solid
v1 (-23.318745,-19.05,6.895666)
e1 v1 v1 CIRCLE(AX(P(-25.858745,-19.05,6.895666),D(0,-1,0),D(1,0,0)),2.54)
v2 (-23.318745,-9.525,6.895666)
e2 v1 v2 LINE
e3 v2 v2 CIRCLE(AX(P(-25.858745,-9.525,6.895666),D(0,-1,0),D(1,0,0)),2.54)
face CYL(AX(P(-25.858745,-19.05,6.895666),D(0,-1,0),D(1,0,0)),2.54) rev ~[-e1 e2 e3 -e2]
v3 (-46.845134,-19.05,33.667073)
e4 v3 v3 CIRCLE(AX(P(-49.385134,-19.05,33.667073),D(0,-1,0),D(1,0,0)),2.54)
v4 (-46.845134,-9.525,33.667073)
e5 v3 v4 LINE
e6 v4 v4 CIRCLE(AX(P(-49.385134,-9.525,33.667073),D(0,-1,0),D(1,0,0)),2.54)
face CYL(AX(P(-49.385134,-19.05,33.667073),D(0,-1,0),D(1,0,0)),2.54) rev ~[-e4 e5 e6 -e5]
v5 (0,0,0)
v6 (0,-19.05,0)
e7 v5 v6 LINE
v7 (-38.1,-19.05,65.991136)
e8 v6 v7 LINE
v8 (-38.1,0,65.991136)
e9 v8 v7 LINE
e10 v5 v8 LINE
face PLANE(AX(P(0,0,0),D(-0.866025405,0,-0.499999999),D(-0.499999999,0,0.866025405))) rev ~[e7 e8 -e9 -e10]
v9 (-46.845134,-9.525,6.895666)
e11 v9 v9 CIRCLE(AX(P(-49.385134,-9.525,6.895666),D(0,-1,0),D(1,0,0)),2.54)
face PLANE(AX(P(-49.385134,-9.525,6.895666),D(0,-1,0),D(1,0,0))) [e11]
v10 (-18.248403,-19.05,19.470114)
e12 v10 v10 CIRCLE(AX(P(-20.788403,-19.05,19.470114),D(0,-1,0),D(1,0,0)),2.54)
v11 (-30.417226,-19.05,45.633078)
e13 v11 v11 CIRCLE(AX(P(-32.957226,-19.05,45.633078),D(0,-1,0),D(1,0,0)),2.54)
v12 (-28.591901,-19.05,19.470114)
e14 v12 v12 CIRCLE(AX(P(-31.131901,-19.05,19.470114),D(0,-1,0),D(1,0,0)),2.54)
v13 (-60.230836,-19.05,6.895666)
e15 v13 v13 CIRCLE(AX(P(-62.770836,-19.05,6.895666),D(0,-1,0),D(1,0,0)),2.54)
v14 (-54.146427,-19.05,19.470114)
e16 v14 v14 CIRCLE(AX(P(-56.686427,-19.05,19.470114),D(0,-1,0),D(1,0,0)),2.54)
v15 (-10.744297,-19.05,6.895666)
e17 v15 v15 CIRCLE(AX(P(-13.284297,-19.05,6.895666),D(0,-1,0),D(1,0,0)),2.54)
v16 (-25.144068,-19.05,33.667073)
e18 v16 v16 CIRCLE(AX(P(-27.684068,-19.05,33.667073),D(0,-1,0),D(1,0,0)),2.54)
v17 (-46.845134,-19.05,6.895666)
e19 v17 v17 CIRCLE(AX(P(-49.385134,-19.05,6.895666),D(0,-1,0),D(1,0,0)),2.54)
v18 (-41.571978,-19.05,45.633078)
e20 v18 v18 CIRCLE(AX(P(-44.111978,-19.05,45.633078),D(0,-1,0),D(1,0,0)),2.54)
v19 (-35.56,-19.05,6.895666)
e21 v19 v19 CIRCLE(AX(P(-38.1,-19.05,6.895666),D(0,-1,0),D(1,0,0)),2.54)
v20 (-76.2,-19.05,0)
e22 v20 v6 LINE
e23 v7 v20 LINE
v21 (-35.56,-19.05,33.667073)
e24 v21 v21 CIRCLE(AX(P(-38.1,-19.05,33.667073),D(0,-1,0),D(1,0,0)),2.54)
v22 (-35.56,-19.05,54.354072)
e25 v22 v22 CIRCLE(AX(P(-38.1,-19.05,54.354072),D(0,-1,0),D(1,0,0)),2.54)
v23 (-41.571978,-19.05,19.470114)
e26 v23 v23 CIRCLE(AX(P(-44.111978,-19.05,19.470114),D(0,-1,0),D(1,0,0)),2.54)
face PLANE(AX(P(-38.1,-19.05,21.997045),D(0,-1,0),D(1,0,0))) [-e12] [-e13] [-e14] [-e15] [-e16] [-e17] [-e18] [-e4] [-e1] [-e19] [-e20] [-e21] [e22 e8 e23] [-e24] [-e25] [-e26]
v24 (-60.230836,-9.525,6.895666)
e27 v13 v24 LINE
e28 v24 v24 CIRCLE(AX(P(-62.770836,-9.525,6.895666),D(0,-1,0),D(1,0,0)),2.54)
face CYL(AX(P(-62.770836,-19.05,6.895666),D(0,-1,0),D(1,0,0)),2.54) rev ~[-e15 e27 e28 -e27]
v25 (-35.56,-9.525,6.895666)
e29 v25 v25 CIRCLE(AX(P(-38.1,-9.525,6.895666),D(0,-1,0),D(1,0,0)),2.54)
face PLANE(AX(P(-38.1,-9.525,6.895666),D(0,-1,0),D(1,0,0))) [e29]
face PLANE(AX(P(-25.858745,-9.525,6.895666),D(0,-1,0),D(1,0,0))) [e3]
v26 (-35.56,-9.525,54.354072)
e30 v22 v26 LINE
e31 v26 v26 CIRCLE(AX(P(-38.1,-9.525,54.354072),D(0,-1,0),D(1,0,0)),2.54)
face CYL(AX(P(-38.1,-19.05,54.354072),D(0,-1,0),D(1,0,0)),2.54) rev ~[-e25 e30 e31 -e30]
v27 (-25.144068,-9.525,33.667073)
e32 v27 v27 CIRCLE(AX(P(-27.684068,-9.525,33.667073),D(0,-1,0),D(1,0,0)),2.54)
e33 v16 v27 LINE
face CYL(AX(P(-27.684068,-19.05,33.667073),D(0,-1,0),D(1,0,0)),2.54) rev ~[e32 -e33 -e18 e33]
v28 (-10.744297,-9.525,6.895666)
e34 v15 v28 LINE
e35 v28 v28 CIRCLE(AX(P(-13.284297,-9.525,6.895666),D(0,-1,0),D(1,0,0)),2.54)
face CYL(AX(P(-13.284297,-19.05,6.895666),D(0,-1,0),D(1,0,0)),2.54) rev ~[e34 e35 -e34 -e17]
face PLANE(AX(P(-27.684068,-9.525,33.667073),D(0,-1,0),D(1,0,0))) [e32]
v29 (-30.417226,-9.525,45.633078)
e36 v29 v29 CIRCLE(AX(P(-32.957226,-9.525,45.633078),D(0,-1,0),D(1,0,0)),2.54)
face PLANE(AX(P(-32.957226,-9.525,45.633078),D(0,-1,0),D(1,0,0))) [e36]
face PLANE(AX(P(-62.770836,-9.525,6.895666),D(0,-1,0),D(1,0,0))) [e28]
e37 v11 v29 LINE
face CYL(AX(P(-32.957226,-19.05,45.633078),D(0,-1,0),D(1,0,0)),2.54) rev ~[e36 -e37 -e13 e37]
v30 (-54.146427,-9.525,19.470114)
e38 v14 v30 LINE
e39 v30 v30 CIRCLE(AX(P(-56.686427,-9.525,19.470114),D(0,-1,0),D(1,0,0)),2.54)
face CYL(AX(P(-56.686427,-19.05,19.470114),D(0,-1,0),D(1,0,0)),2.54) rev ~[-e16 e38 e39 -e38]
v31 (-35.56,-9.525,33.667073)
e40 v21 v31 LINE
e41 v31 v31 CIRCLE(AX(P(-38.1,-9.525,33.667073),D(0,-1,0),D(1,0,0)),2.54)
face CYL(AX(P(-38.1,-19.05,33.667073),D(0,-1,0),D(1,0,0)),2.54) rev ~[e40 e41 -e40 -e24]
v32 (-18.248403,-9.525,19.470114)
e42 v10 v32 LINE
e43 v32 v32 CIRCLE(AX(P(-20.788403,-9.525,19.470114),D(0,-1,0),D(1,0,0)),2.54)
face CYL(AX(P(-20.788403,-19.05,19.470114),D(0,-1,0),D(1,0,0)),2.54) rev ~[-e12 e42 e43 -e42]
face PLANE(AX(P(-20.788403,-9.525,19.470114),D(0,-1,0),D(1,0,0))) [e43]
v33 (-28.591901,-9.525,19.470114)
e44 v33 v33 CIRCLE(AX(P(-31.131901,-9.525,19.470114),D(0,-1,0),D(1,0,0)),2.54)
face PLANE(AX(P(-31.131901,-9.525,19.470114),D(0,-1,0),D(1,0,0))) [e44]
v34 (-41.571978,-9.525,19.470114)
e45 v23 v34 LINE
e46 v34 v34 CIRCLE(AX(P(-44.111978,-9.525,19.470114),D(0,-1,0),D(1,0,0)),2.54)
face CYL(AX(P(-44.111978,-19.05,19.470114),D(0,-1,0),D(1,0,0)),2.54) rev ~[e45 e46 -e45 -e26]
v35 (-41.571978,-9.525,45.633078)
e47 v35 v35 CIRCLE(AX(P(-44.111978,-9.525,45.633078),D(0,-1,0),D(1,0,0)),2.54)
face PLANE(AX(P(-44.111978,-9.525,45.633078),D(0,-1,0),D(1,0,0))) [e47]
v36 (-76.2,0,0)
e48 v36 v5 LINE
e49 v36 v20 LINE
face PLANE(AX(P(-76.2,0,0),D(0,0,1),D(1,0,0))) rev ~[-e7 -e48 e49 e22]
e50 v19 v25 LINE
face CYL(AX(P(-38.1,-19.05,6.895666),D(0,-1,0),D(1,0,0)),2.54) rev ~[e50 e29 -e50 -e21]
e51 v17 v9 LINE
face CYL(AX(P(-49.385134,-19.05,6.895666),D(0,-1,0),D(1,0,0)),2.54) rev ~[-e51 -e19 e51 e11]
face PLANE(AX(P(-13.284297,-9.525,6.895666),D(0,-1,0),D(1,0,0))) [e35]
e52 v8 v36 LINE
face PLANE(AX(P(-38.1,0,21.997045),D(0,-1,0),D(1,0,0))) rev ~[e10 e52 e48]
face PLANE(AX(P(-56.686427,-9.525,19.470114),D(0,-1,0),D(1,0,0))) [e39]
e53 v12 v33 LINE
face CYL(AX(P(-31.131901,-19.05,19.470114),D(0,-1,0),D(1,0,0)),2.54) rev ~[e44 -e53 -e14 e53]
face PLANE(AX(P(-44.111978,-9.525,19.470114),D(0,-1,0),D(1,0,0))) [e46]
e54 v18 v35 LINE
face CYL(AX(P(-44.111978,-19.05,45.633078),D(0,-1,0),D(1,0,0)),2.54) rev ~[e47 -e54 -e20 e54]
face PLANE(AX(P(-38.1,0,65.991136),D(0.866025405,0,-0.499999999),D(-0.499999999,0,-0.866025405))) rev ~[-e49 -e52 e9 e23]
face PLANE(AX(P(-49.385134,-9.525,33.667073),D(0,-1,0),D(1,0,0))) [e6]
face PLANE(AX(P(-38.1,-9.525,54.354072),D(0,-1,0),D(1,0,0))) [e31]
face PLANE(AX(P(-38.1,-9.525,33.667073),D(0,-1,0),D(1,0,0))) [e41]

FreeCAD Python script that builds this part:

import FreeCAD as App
import Part
import Sketcher

V = App.Vector
Q = App.Units.Quantity


def add_polygon(sketch, points):
    """Adds a closed chain of lines whose ends are joined by coincident constraints."""
    first, n = sketch.GeometryCount, len(points)
    for a, b in zip(points, points[1:] + points[:1]):
        sketch.addGeometry(Part.LineSegment(App.Vector(*a, 0), App.Vector(*b, 0)), False)
    for i in range(n):
        sketch.addConstraint(Sketcher.Constraint("Coincident", first + i, 2, first + (i + 1) % n, 1))

doc = App.newDocument("Part")
body = doc.addObject("PartDesign::Body", "Body")

# Sketch on XZ plane
sketch1 = body.newObject("Sketcher::SketchObject", "Sketch")
sketch1.AttachmentSupport = (doc.getObject("XZ_Plane"), [""])
sketch1.MapMode = "FlatFace"
add_polygon(sketch1, [(-38, 66), (-76, 0), (0, 0)])  # lines 0-2
sketch1.addConstraint(Sketcher.Constraint("Horizontal", 1))
sketch1.addConstraint(Sketcher.Constraint("Coincident", 1, 2, -1, 1))
sketch1.addConstraint(Sketcher.Constraint("Equal", 0, 2))
sketch1.addConstraint(Sketcher.Constraint("DistanceX", 1, 1, 1, 2, Q("3 in")))
sketch1.addConstraint(Sketcher.Constraint("Distance", 0, Q("3 in")))
pad1 = body.newObject("PartDesign::Pad", "Pad")
pad1.Profile = sketch1
pad1.Length = Q("0.75 in")

# Sketch on XZ plane
sketch2 = body.newObject("Sketcher::SketchObject", "Sketch001")
sketch2.AttachmentSupport = (doc.getObject("XZ_Plane"), [""])
sketch2.MapMode = "FlatFace"
sketch2.AttachmentOffset = App.Placement(V(0, 0, 0.75 * 25.4), App.Rotation())
sketch2.addGeometry(Part.Circle(V(-62.8, 6.9, 0), V(0, 0, 1), 2.5), False)
sketch2.addConstraint(Sketcher.Constraint("Diameter", 0, Q("0.2 in")))
sketch2.addConstraint(Sketcher.Constraint("DistanceX", 0, 3, -1, 1, Q("62.770836 mm")))
sketch2.addConstraint(Sketcher.Constraint("DistanceY", -1, 1, 0, 3, Q("6.895666 mm")))
pocket1 = body.newObject("PartDesign::Pocket", "Pocket")
pocket1.Profile = sketch2
pocket1.Length = Q("0.375 in")

# Sketch on XZ plane
sketch3 = body.newObject("Sketcher::SketchObject", "Sketch002")
sketch3.AttachmentSupport = (doc.getObject("XZ_Plane"), [""])
sketch3.MapMode = "FlatFace"
sketch3.AttachmentOffset = App.Placement(V(0, 0, 0.75 * 25.4), App.Rotation())
sketch3.addGeometry(Part.Circle(V(-38.1, 6.9, 0), V(0, 0, 1), 2.5), False)
sketch3.addGeometry(Part.Circle(V(-62.8, 6.9, 0), V(0, 0, 1), 2.5), False)
sketch3.addGeometry(Part.Circle(V(-49.4, 6.9, 0), V(0, 0, 1), 2.5), False)
sketch3.addGeometry(Part.Circle(V(-25.9, 6.9, 0), V(0, 0, 1), 2.5), False)
sketch3.addGeometry(Part.Circle(V(-13.3, 6.9, 0), V(0, 0, 1), 2.5), False)
sketch3.addGeometry(Part.Circle(V(-56.7, 19.5, 0), V(0, 0, 1), 2.5), False)
sketch3.addGeometry(Part.Circle(V(-44.1, 19.5, 0), V(0, 0, 1), 2.5), False)
sketch3.addGeometry(Part.Circle(V(-31.1, 19.5, 0), V(0, 0, 1), 2.5), False)
sketch3.addGeometry(Part.Circle(V(-20.8, 19.5, 0), V(0, 0, 1), 2.5), False)
sketch3.addGeometry(Part.Circle(V(-38.1, 33.7, 0), V(0, 0, 1), 2.5), False)
sketch3.addGeometry(Part.Circle(V(-49.4, 33.7, 0), V(0, 0, 1), 2.5), False)
sketch3.addGeometry(Part.Circle(V(-27.7, 33.7, 0), V(0, 0, 1), 2.5), False)
sketch3.addGeometry(Part.Circle(V(-44.1, 45.6, 0), V(0, 0, 1), 2.5), False)
sketch3.addGeometry(Part.Circle(V(-38.1, 54.4, 0), V(0, 0, 1), 2.5), False)
sketch3.addGeometry(Part.Circle(V(-33, 45.6, 0), V(0, 0, 1), 2.5), False)
sketch3.addConstraint(Sketcher.Constraint("Equal", 0, 1))
sketch3.addConstraint(Sketcher.Constraint("Equal", 1, 2))
sketch3.addConstraint(Sketcher.Constraint("Equal", 2, 3))
sketch3.addConstraint(Sketcher.Constraint("Equal", 3, 4))
sketch3.addConstraint(Sketcher.Constraint("Equal", 4, 5))
sketch3.addConstraint(Sketcher.Constraint("Equal", 5, 6))
sketch3.addConstraint(Sketcher.Constraint("Equal", 6, 7))
sketch3.addConstraint(Sketcher.Constraint("Equal", 7, 8))
sketch3.addConstraint(Sketcher.Constraint("Equal", 8, 9))
sketch3.addConstraint(Sketcher.Constraint("Equal", 9, 10))
sketch3.addConstraint(Sketcher.Constraint("Equal", 10, 11))
sketch3.addConstraint(Sketcher.Constraint("Equal", 11, 12))
sketch3.addConstraint(Sketcher.Constraint("Equal", 12, 13))
sketch3.addConstraint(Sketcher.Constraint("Equal", 13, 14))
sketch3.addConstraint(Sketcher.Constraint("Horizontal", 0, 3, 1, 3))
sketch3.addConstraint(Sketcher.Constraint("Horizontal", 1, 3, 2, 3))
sketch3.addConstraint(Sketcher.Constraint("Horizontal", 2, 3, 3, 3))
sketch3.addConstraint(Sketcher.Constraint("Horizontal", 3, 3, 4, 3))
sketch3.addConstraint(Sketcher.Constraint("Horizontal", 5, 3, 6, 3))
sketch3.addConstraint(Sketcher.Constraint("Horizontal", 6, 3, 7, 3))
sketch3.addConstraint(Sketcher.Constraint("Horizontal", 7, 3, 8, 3))
sketch3.addConstraint(Sketcher.Constraint("Horizontal", 9, 3, 10, 3))
sketch3.addConstraint(Sketcher.Constraint("Horizontal", 10, 3, 11, 3))
sketch3.addConstraint(Sketcher.Constraint("Horizontal", 12, 3, 14, 3))
sketch3.addConstraint(Sketcher.Constraint("Vertical", 0, 3, 9, 3))
sketch3.addConstraint(Sketcher.Constraint("Vertical", 2, 3, 10, 3))
sketch3.addConstraint(Sketcher.Constraint("Vertical", 6, 3, 12, 3))
sketch3.addConstraint(Sketcher.Constraint("Vertical", 9, 3, 13, 3))
sketch3.addConstraint(Sketcher.Constraint("Diameter", 0, Q("0.2 in")))
sketch3.addConstraint(Sketcher.Constraint("DistanceX", 0, 3, -1, 1, Q("1.5 in")))
sketch3.addConstraint(Sketcher.Constraint("DistanceX", 7, 3, -1, 1, Q("31.131901 mm")))
sketch3.addConstraint(Sketcher.Constraint("DistanceY", 9, 3, 13, 3, Q("20.686999 mm")))
sketch3.addConstraint(Sketcher.Constraint("DistanceX", 11, 3, -1, 1, Q("27.684068 mm")))
sketch3.addConstraint(Sketcher.Constraint("DistanceX", 2, 3, 3, 3, Q("23.526389 mm")))
sketch3.addConstraint(Sketcher.Constraint("DistanceX", 1, 3, 3, 3, Q("36.912091 mm")))
sketch3.addConstraint(Sketcher.Constraint("DistanceX", 1, 3, 4, 3, Q("49.486539 mm")))
sketch3.addConstraint(Sketcher.Constraint("DistanceX", 1, 3, 5, 3, Q("6.084409 mm")))
sketch3.addConstraint(Sketcher.Constraint("DistanceX", 5, 3, 6, 3, Q("12.574449 mm")))
sketch3.addConstraint(Sketcher.Constraint("DistanceY", 6, 3, 9, 3, Q("14.196959 mm")))
sketch3.addConstraint(Sketcher.Constraint("DistanceX", 6, 3, 11, 3, Q("16.42791 mm")))
sketch3.addConstraint(Sketcher.Constraint("DistanceX", 10, 3, 14, 3, Q("16.427908 mm")))
sketch3.addConstraint(Sketcher.Constraint("DistanceY", -1, 1, 0, 3, Q("6.895666 mm")))
sketch3.addConstraint(Sketcher.Constraint("DistanceY", -1, 1, 5, 3, Q("19.470114 mm")))
sketch3.addConstraint(Sketcher.Constraint("DistanceX", 8, 3, -1, 1, Q("20.788403 mm")))
sketch3.addConstraint(Sketcher.Constraint("DistanceY", -1, 1, 12, 3, Q("45.633078 mm")))
pocket2 = body.newObject("PartDesign::Pocket", "Pocket001")
pocket2.Profile = sketch3
pocket2.Length = Q("0.375 in")

doc.recompute()
